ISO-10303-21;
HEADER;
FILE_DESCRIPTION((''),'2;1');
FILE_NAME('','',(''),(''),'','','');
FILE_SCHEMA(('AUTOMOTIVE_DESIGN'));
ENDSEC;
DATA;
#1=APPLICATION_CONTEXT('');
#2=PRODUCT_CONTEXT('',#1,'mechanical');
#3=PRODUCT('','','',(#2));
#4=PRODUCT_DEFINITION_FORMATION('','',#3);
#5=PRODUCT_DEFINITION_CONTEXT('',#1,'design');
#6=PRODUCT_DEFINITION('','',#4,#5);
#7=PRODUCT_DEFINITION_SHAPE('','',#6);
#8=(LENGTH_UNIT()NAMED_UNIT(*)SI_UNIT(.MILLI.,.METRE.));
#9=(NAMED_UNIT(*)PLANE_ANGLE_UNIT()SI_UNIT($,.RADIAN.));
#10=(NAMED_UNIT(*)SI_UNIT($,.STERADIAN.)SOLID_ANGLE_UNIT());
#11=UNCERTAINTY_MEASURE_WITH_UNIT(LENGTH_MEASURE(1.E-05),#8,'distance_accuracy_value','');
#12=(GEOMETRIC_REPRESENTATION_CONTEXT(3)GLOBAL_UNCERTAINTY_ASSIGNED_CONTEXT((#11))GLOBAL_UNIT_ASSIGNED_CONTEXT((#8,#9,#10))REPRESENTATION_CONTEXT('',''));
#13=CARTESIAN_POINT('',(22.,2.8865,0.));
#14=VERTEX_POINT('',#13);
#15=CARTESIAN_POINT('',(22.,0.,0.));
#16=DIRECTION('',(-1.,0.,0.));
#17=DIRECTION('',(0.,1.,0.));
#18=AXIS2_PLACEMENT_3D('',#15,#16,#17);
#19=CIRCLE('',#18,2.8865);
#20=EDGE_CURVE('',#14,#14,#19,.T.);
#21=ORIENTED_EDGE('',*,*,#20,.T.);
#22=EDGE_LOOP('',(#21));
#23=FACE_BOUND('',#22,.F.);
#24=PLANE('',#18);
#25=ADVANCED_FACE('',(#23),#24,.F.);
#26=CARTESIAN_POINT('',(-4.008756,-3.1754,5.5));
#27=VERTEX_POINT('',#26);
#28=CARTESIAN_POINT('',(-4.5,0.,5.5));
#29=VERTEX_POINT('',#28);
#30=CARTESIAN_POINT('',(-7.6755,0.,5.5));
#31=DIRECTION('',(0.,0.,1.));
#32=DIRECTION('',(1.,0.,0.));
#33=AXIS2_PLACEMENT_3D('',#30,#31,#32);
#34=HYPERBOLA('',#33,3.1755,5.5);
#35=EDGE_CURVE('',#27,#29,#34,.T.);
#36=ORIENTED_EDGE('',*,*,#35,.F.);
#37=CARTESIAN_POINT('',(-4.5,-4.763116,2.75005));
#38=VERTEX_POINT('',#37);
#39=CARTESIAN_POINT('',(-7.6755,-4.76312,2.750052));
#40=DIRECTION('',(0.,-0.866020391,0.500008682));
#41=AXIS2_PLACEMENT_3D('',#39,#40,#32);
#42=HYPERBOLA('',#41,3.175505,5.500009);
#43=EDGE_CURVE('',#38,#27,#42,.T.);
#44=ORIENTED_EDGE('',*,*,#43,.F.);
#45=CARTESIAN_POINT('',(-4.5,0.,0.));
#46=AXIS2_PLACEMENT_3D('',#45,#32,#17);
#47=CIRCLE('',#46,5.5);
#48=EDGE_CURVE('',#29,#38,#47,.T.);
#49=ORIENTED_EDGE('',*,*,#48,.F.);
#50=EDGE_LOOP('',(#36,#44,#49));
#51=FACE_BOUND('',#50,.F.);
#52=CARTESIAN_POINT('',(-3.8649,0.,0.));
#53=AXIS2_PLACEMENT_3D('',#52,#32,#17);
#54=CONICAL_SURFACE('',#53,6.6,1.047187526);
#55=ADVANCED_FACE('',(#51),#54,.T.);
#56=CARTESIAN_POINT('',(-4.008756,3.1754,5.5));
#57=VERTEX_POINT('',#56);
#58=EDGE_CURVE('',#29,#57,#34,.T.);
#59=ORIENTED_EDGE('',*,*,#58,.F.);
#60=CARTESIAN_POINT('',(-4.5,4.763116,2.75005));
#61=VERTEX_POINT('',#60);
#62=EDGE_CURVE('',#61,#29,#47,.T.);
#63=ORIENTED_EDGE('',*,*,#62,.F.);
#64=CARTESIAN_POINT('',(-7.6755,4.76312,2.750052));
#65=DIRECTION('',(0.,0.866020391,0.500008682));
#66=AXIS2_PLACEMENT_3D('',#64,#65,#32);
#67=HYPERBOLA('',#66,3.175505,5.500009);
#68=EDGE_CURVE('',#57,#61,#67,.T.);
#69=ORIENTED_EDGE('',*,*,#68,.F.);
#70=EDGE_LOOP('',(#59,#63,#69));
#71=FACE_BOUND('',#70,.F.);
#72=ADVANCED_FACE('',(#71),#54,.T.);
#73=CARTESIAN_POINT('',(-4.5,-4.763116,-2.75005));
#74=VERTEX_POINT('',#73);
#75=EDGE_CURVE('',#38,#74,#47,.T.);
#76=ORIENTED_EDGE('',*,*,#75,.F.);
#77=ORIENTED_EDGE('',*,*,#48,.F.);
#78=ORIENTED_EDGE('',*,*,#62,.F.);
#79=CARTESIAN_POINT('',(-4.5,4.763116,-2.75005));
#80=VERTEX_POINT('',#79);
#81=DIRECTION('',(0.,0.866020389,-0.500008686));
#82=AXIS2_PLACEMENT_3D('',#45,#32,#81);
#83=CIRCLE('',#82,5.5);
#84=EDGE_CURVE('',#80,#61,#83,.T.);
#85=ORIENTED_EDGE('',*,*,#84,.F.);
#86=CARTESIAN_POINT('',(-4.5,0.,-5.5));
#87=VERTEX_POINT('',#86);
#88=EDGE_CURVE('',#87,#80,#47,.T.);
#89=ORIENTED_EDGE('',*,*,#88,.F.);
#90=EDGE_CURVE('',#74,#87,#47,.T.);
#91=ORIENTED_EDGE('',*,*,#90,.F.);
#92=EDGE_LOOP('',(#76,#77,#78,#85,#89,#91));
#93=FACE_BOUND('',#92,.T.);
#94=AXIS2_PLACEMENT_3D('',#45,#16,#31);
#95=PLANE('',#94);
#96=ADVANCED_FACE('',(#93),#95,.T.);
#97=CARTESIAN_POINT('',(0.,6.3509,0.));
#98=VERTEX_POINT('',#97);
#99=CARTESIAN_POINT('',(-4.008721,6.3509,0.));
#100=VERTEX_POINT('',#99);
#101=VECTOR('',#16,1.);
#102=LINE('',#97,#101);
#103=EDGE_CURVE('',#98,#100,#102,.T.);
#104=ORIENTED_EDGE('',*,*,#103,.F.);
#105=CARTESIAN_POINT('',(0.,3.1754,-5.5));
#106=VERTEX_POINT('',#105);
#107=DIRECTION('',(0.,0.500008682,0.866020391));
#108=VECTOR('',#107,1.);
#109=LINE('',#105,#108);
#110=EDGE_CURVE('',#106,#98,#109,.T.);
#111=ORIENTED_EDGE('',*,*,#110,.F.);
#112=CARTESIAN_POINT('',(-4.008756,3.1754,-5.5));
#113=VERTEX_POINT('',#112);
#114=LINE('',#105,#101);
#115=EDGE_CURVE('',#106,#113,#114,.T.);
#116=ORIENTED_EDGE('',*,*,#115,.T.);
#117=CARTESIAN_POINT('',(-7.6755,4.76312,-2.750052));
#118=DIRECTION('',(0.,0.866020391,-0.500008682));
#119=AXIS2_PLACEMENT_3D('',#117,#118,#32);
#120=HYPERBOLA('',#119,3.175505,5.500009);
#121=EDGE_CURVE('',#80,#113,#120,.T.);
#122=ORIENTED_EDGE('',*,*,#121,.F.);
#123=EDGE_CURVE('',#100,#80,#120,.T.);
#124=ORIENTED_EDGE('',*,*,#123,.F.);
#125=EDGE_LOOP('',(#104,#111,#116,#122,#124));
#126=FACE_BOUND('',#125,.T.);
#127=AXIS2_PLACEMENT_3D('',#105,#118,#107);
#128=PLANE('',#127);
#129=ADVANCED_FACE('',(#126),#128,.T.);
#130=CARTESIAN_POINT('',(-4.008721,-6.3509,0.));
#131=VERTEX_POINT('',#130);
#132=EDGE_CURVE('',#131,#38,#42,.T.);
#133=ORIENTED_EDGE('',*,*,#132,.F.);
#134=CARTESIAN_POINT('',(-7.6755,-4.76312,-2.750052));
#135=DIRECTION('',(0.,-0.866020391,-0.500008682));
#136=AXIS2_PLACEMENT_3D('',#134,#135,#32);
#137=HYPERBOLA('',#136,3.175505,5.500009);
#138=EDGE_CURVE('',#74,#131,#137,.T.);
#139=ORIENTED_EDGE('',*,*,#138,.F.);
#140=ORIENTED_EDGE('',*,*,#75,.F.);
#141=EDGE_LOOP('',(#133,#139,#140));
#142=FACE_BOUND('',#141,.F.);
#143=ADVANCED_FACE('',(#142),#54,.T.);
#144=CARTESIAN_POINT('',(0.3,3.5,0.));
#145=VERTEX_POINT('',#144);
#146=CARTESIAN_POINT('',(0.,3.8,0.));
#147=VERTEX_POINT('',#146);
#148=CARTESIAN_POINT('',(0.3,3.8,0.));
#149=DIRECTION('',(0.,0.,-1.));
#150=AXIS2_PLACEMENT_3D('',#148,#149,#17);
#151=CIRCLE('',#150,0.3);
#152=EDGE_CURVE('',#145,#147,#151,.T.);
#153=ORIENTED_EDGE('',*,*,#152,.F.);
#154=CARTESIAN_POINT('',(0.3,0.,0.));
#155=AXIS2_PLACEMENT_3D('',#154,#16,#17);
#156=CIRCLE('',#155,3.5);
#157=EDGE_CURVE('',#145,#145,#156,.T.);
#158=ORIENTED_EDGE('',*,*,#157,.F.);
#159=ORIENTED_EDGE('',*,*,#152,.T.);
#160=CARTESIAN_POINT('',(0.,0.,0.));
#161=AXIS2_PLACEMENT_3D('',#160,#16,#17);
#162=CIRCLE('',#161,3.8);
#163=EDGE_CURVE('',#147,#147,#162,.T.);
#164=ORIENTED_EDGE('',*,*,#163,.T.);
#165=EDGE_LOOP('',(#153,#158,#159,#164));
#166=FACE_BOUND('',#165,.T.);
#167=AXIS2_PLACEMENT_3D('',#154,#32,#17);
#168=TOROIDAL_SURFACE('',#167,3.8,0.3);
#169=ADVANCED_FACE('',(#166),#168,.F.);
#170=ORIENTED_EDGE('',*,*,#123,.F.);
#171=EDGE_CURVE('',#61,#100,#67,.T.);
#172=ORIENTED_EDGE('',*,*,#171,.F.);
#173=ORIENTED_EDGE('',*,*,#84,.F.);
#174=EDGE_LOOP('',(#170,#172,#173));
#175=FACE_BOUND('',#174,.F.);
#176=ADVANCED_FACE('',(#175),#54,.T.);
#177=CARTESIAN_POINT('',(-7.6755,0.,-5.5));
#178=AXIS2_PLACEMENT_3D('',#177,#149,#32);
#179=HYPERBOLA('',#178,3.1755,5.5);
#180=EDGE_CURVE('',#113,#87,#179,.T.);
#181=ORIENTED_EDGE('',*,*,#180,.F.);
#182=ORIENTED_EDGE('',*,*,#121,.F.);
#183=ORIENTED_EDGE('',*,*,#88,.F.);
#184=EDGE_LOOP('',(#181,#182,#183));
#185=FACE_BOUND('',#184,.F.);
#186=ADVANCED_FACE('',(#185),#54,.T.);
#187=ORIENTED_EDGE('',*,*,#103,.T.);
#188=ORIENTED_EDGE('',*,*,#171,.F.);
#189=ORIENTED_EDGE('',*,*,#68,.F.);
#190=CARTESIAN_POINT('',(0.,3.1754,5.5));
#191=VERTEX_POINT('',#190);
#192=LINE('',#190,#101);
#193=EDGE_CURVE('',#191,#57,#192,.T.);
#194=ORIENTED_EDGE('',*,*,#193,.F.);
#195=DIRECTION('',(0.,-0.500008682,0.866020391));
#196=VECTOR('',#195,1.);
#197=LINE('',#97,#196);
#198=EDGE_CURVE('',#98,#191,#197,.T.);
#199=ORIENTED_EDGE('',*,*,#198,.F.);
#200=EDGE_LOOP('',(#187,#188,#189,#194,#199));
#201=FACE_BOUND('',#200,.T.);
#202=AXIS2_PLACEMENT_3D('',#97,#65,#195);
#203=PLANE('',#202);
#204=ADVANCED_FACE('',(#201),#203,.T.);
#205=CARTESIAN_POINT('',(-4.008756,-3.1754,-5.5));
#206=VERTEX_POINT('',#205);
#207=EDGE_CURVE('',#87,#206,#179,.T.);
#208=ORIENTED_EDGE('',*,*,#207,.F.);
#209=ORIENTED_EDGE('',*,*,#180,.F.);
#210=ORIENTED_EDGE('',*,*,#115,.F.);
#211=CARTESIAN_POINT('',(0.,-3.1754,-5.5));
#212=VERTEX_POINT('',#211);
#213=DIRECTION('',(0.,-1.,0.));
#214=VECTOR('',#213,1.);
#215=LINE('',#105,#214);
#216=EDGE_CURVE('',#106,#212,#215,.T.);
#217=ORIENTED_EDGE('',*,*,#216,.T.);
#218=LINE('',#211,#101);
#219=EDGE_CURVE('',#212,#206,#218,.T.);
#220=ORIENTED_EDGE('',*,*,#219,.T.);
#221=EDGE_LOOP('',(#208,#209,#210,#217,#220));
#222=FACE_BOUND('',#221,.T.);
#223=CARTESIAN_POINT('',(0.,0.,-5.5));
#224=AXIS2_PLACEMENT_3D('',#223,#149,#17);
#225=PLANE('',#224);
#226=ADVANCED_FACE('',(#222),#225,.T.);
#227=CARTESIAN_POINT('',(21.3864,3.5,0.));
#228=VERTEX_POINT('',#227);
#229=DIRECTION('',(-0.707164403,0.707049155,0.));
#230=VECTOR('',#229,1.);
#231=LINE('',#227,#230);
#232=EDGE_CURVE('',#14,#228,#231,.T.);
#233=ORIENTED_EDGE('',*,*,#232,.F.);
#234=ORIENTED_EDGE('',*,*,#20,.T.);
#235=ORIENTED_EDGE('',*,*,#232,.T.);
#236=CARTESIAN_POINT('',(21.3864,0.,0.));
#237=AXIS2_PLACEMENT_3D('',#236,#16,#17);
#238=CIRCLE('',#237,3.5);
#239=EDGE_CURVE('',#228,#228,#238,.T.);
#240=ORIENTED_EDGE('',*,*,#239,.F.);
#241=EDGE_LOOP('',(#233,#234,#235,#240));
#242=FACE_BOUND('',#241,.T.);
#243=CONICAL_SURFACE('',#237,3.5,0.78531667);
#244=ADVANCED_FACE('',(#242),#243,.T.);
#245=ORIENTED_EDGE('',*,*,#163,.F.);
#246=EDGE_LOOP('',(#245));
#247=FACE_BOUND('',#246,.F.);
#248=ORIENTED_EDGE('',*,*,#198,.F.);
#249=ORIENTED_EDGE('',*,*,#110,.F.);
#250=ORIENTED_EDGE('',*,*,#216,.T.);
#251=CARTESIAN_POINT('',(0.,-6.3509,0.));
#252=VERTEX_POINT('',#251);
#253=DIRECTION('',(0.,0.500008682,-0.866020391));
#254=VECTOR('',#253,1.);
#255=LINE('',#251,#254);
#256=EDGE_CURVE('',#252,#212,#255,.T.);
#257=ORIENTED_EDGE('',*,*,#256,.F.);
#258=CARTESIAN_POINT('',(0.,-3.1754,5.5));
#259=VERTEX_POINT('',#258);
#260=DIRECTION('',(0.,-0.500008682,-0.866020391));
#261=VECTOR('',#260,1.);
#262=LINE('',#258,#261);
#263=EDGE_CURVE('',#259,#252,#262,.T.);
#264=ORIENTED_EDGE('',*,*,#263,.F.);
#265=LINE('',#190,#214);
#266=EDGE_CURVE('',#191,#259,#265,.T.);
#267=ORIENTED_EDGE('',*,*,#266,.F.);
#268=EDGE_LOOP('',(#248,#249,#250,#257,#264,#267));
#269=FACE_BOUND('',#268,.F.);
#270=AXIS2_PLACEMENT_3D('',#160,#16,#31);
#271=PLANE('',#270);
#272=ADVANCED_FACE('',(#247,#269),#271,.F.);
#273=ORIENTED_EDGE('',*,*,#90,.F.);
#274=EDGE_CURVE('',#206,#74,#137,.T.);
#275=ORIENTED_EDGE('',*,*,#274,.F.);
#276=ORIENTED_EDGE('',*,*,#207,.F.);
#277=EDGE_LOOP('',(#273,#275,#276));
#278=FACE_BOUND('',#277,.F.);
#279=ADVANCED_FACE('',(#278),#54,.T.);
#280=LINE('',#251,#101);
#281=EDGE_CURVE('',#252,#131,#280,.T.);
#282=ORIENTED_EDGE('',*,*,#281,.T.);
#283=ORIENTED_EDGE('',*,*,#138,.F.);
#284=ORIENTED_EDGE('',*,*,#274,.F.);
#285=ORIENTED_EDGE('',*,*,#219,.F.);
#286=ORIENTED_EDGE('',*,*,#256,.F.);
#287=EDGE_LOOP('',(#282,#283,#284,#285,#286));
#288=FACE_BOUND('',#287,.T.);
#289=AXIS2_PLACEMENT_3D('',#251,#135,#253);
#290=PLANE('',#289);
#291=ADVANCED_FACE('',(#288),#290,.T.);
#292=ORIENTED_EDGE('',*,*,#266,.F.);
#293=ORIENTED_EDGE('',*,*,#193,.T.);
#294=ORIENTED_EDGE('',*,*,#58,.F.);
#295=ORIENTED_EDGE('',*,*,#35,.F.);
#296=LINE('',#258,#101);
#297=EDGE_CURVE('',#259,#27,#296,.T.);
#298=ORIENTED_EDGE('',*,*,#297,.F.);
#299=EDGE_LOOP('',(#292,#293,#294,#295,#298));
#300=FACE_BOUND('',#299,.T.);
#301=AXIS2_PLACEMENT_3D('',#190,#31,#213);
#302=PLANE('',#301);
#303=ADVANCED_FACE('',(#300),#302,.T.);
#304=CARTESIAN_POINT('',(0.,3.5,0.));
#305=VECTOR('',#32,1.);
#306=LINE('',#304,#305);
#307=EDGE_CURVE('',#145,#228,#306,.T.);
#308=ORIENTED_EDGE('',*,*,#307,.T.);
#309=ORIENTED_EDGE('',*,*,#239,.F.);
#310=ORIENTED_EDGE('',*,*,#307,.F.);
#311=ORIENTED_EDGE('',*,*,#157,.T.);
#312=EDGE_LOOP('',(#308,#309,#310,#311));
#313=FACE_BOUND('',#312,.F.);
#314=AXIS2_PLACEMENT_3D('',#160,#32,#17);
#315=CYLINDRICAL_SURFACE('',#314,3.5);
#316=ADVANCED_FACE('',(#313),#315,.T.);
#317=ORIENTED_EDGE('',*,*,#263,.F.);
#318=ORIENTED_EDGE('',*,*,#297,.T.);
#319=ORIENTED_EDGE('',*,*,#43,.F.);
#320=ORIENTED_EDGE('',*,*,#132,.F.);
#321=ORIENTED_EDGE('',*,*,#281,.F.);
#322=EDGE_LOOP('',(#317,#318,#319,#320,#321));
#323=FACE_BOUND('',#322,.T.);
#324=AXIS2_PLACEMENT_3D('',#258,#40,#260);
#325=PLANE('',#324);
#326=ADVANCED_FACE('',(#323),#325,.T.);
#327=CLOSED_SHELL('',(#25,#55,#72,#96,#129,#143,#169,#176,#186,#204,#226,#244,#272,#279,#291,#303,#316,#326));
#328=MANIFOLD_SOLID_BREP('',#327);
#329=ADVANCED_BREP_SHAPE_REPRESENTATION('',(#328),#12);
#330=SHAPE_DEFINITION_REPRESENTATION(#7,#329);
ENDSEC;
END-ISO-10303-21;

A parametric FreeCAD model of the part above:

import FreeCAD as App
import Part
import Sketcher
Q = App.Units.Quantity


def edges_at(feature, points):
    """Names of the edges that pass closest to the given points."""
    edges = feature.Shape.Edges
    near = lambda p: min(range(len(edges)), key=lambda i: edges[i].distToShape(Part.Vertex(*p))[0])
    return sorted({f"Edge{near(p) + 1}" for p in points})

doc = App.newDocument("Part")
body = doc.addObject("PartDesign::Body", "Body")

# Sketch on XY plane
sketch1 = body.newObject("Sketcher::SketchObject", "Sketch")
sketch1.AttachmentSupport = (doc.getObject("XY_Plane"), [""])
sketch1.MapMode = "FlatFace"
sketch1.addGeometry(Part.LineSegment(App.Vector(22, 3.5, 0), App.Vector(0, 3.5, 0)), False)
sketch1.addGeometry(Part.LineSegment(App.Vector(0, 3.5, 0), App.Vector(0, 0, 0)), False)
sketch1.addGeometry(Part.LineSegment(App.Vector(0, 0, 0), App.Vector(22, 0, 0)), False)
sketch1.addGeometry(Part.LineSegment(App.Vector(22, 0, 0), App.Vector(22, 3.5, 0)), False)
sketch1.addConstraint(Sketcher.Constraint("Coincident", 0, 2, 1, 1))
sketch1.addConstraint(Sketcher.Constraint("Coincident", 1, 2, 2, 1))
sketch1.addConstraint(Sketcher.Constraint("Coincident", 2, 2, 3, 1))
sketch1.addConstraint(Sketcher.Constraint("Coincident", 3, 2, 0, 1))
sketch1.addConstraint(Sketcher.Constraint("Horizontal", 0))
sketch1.addConstraint(Sketcher.Constraint("Vertical", 1))
sketch1.addConstraint(Sketcher.Constraint("Horizontal", 2))
sketch1.addConstraint(Sketcher.Constraint("Vertical", 3))
sketch1.addConstraint(Sketcher.Constraint("Coincident", 1, 2, -1, 1))
sketch1.addConstraint(Sketcher.Constraint("DistanceX", 0, 2, 0, 1, 22.0))
sketch1.addConstraint(Sketcher.Constraint("DistanceY", 1, 2, 1, 1, 3.5))
revolution = body.newObject("PartDesign::Revolution", "Revolution")
revolution.Profile = sketch1
revolution.ReferenceAxis = (sketch1, ["H_Axis"])
revolution.Angle = 360

# Sketch on YZ plane
sketch2 = body.newObject("Sketcher::SketchObject", "Sketch001")
sketch2.AttachmentSupport = (doc.getObject("YZ_Plane"), [""])
sketch2.MapMode = "FlatFace"
sketch2.addGeometry(Part.LineSegment(App.Vector(3, -6, 0), App.Vector(-3, -6, 0)), False)
sketch2.addGeometry(Part.LineSegment(App.Vector(-3, -6, 0), App.Vector(-6, 0, 0)), False)
sketch2.addGeometry(Part.LineSegment(App.Vector(-6, 0, 0), App.Vector(-3, 6, 0)), False)
sketch2.addGeometry(Part.LineSegment(App.Vector(-3, 6, 0), App.Vector(3, 6, 0)), False)
sketch2.addGeometry(Part.LineSegment(App.Vector(3, 6, 0), App.Vector(6, 0, 0)), False)
sketch2.addGeometry(Part.LineSegment(App.Vector(6, 0, 0), App.Vector(3, -6, 0)), False)
sketch2.addConstraint(Sketcher.Constraint("Coincident", 0, 2, 1, 1))
sketch2.addConstraint(Sketcher.Constraint("Coincident", 1, 2, 2, 1))
sketch2.addConstraint(Sketcher.Constraint("Coincident", 2, 2, 3, 1))
sketch2.addConstraint(Sketcher.Constraint("Coincident", 3, 2, 4, 1))
sketch2.addConstraint(Sketcher.Constraint("Coincident", 4, 2, 5, 1))
sketch2.addConstraint(Sketcher.Constraint("Coincident", 5, 2, 0, 1))
sketch2.addConstraint(Sketcher.Constraint("Horizontal", 0))
sketch2.addConstraint(Sketcher.Constraint("Horizontal", 3))
sketch2.addConstraint(Sketcher.Constraint("Symmetric", 0, 2, 3, 2, -1, 1))
sketch2.addConstraint(Sketcher.Constraint("Symmetric", 1, 2, 4, 2, -1, 1))
sketch2.addConstraint(Sketcher.Constraint("PointOnObject", 1, 2, -1))
sketch2.addConstraint(Sketcher.Constraint("Parallel", 2, 5))
sketch2.addConstraint(Sketcher.Constraint("Vertical", 0, 2, 2, 2))
sketch2.addConstraint(Sketcher.Constraint("DistanceY", 0, 2, 2, 2, 11.0))
sketch2.addConstraint(Sketcher.Constraint("Angle", 1, Q("120.0006 deg")))
sketch2.addConstraint(Sketcher.Constraint("DistanceX", 0, 2, 0, 1, 6.3508))
pad1 = body.newObject("PartDesign::Pad", "Pad")
pad1.Profile = sketch2
pad1.Length = 4.5
pad1.Reversed = True

# Sketch on XY plane
sketch3 = body.newObject("Sketcher::SketchObject", "Sketch002")
sketch3.AttachmentSupport = (doc.getObject("XY_Plane"), [""])
sketch3.MapMode = "FlatFace"
sketch3.addGeometry(Part.LineSegment(App.Vector(-4.5, 5.5, 0), App.Vector(-3.9, 6.6, 0)), False)
sketch3.addGeometry(Part.LineSegment(App.Vector(-3.9, 6.6, 0), App.Vector(-4.5, 6.6, 0)), False)
sketch3.addGeometry(Part.LineSegment(App.Vector(-4.5, 6.6, 0), App.Vector(-4.5, 5.5, 0)), False)
sketch3.addConstraint(Sketcher.Constraint("Coincident", 0, 2, 1, 1))
sketch3.addConstraint(Sketcher.Constraint("Coincident", 1, 2, 2, 1))
sketch3.addConstraint(Sketcher.Constraint("Coincident", 2, 2, 0, 1))
sketch3.addConstraint(Sketcher.Constraint("Horizontal", 1))
sketch3.addConstraint(Sketcher.Constraint("Vertical", 2))
sketch3.addConstraint(Sketcher.Constraint("DistanceX", 1, 2, -1, 1, 4.5))
sketch3.addConstraint(Sketcher.Constraint("Angle", 0, Q("59.9994 deg")))
sketch3.addConstraint(Sketcher.Constraint("DistanceY", 2, 2, 2, 1, 1.1))
sketch3.addConstraint(Sketcher.Constraint("DistanceY", -1, 1, 0, 2, 6.6))
groove = body.newObject("PartDesign::Groove", "Groove")
groove.Profile = sketch3
groove.ReferenceAxis = (sketch3, ["H_Axis"])
groove.Angle = 360
doc.recompute()

chamfer = body.newObject("PartDesign::Chamfer", "Chamfer")
chamfer.Base = (groove, edges_at(groove, [(22, -3.5, 0)]))
chamfer.ChamferType = "Two distances"
chamfer.Size = 0.6135
chamfer.Size2 = 0.6136
doc.recompute()

fillet = body.newObject("PartDesign::Fillet", "Fillet")
fillet.Base = (chamfer, edges_at(chamfer, [(0, -3.5, 0)]))
fillet.Radius = 0.3

doc.recompute()
